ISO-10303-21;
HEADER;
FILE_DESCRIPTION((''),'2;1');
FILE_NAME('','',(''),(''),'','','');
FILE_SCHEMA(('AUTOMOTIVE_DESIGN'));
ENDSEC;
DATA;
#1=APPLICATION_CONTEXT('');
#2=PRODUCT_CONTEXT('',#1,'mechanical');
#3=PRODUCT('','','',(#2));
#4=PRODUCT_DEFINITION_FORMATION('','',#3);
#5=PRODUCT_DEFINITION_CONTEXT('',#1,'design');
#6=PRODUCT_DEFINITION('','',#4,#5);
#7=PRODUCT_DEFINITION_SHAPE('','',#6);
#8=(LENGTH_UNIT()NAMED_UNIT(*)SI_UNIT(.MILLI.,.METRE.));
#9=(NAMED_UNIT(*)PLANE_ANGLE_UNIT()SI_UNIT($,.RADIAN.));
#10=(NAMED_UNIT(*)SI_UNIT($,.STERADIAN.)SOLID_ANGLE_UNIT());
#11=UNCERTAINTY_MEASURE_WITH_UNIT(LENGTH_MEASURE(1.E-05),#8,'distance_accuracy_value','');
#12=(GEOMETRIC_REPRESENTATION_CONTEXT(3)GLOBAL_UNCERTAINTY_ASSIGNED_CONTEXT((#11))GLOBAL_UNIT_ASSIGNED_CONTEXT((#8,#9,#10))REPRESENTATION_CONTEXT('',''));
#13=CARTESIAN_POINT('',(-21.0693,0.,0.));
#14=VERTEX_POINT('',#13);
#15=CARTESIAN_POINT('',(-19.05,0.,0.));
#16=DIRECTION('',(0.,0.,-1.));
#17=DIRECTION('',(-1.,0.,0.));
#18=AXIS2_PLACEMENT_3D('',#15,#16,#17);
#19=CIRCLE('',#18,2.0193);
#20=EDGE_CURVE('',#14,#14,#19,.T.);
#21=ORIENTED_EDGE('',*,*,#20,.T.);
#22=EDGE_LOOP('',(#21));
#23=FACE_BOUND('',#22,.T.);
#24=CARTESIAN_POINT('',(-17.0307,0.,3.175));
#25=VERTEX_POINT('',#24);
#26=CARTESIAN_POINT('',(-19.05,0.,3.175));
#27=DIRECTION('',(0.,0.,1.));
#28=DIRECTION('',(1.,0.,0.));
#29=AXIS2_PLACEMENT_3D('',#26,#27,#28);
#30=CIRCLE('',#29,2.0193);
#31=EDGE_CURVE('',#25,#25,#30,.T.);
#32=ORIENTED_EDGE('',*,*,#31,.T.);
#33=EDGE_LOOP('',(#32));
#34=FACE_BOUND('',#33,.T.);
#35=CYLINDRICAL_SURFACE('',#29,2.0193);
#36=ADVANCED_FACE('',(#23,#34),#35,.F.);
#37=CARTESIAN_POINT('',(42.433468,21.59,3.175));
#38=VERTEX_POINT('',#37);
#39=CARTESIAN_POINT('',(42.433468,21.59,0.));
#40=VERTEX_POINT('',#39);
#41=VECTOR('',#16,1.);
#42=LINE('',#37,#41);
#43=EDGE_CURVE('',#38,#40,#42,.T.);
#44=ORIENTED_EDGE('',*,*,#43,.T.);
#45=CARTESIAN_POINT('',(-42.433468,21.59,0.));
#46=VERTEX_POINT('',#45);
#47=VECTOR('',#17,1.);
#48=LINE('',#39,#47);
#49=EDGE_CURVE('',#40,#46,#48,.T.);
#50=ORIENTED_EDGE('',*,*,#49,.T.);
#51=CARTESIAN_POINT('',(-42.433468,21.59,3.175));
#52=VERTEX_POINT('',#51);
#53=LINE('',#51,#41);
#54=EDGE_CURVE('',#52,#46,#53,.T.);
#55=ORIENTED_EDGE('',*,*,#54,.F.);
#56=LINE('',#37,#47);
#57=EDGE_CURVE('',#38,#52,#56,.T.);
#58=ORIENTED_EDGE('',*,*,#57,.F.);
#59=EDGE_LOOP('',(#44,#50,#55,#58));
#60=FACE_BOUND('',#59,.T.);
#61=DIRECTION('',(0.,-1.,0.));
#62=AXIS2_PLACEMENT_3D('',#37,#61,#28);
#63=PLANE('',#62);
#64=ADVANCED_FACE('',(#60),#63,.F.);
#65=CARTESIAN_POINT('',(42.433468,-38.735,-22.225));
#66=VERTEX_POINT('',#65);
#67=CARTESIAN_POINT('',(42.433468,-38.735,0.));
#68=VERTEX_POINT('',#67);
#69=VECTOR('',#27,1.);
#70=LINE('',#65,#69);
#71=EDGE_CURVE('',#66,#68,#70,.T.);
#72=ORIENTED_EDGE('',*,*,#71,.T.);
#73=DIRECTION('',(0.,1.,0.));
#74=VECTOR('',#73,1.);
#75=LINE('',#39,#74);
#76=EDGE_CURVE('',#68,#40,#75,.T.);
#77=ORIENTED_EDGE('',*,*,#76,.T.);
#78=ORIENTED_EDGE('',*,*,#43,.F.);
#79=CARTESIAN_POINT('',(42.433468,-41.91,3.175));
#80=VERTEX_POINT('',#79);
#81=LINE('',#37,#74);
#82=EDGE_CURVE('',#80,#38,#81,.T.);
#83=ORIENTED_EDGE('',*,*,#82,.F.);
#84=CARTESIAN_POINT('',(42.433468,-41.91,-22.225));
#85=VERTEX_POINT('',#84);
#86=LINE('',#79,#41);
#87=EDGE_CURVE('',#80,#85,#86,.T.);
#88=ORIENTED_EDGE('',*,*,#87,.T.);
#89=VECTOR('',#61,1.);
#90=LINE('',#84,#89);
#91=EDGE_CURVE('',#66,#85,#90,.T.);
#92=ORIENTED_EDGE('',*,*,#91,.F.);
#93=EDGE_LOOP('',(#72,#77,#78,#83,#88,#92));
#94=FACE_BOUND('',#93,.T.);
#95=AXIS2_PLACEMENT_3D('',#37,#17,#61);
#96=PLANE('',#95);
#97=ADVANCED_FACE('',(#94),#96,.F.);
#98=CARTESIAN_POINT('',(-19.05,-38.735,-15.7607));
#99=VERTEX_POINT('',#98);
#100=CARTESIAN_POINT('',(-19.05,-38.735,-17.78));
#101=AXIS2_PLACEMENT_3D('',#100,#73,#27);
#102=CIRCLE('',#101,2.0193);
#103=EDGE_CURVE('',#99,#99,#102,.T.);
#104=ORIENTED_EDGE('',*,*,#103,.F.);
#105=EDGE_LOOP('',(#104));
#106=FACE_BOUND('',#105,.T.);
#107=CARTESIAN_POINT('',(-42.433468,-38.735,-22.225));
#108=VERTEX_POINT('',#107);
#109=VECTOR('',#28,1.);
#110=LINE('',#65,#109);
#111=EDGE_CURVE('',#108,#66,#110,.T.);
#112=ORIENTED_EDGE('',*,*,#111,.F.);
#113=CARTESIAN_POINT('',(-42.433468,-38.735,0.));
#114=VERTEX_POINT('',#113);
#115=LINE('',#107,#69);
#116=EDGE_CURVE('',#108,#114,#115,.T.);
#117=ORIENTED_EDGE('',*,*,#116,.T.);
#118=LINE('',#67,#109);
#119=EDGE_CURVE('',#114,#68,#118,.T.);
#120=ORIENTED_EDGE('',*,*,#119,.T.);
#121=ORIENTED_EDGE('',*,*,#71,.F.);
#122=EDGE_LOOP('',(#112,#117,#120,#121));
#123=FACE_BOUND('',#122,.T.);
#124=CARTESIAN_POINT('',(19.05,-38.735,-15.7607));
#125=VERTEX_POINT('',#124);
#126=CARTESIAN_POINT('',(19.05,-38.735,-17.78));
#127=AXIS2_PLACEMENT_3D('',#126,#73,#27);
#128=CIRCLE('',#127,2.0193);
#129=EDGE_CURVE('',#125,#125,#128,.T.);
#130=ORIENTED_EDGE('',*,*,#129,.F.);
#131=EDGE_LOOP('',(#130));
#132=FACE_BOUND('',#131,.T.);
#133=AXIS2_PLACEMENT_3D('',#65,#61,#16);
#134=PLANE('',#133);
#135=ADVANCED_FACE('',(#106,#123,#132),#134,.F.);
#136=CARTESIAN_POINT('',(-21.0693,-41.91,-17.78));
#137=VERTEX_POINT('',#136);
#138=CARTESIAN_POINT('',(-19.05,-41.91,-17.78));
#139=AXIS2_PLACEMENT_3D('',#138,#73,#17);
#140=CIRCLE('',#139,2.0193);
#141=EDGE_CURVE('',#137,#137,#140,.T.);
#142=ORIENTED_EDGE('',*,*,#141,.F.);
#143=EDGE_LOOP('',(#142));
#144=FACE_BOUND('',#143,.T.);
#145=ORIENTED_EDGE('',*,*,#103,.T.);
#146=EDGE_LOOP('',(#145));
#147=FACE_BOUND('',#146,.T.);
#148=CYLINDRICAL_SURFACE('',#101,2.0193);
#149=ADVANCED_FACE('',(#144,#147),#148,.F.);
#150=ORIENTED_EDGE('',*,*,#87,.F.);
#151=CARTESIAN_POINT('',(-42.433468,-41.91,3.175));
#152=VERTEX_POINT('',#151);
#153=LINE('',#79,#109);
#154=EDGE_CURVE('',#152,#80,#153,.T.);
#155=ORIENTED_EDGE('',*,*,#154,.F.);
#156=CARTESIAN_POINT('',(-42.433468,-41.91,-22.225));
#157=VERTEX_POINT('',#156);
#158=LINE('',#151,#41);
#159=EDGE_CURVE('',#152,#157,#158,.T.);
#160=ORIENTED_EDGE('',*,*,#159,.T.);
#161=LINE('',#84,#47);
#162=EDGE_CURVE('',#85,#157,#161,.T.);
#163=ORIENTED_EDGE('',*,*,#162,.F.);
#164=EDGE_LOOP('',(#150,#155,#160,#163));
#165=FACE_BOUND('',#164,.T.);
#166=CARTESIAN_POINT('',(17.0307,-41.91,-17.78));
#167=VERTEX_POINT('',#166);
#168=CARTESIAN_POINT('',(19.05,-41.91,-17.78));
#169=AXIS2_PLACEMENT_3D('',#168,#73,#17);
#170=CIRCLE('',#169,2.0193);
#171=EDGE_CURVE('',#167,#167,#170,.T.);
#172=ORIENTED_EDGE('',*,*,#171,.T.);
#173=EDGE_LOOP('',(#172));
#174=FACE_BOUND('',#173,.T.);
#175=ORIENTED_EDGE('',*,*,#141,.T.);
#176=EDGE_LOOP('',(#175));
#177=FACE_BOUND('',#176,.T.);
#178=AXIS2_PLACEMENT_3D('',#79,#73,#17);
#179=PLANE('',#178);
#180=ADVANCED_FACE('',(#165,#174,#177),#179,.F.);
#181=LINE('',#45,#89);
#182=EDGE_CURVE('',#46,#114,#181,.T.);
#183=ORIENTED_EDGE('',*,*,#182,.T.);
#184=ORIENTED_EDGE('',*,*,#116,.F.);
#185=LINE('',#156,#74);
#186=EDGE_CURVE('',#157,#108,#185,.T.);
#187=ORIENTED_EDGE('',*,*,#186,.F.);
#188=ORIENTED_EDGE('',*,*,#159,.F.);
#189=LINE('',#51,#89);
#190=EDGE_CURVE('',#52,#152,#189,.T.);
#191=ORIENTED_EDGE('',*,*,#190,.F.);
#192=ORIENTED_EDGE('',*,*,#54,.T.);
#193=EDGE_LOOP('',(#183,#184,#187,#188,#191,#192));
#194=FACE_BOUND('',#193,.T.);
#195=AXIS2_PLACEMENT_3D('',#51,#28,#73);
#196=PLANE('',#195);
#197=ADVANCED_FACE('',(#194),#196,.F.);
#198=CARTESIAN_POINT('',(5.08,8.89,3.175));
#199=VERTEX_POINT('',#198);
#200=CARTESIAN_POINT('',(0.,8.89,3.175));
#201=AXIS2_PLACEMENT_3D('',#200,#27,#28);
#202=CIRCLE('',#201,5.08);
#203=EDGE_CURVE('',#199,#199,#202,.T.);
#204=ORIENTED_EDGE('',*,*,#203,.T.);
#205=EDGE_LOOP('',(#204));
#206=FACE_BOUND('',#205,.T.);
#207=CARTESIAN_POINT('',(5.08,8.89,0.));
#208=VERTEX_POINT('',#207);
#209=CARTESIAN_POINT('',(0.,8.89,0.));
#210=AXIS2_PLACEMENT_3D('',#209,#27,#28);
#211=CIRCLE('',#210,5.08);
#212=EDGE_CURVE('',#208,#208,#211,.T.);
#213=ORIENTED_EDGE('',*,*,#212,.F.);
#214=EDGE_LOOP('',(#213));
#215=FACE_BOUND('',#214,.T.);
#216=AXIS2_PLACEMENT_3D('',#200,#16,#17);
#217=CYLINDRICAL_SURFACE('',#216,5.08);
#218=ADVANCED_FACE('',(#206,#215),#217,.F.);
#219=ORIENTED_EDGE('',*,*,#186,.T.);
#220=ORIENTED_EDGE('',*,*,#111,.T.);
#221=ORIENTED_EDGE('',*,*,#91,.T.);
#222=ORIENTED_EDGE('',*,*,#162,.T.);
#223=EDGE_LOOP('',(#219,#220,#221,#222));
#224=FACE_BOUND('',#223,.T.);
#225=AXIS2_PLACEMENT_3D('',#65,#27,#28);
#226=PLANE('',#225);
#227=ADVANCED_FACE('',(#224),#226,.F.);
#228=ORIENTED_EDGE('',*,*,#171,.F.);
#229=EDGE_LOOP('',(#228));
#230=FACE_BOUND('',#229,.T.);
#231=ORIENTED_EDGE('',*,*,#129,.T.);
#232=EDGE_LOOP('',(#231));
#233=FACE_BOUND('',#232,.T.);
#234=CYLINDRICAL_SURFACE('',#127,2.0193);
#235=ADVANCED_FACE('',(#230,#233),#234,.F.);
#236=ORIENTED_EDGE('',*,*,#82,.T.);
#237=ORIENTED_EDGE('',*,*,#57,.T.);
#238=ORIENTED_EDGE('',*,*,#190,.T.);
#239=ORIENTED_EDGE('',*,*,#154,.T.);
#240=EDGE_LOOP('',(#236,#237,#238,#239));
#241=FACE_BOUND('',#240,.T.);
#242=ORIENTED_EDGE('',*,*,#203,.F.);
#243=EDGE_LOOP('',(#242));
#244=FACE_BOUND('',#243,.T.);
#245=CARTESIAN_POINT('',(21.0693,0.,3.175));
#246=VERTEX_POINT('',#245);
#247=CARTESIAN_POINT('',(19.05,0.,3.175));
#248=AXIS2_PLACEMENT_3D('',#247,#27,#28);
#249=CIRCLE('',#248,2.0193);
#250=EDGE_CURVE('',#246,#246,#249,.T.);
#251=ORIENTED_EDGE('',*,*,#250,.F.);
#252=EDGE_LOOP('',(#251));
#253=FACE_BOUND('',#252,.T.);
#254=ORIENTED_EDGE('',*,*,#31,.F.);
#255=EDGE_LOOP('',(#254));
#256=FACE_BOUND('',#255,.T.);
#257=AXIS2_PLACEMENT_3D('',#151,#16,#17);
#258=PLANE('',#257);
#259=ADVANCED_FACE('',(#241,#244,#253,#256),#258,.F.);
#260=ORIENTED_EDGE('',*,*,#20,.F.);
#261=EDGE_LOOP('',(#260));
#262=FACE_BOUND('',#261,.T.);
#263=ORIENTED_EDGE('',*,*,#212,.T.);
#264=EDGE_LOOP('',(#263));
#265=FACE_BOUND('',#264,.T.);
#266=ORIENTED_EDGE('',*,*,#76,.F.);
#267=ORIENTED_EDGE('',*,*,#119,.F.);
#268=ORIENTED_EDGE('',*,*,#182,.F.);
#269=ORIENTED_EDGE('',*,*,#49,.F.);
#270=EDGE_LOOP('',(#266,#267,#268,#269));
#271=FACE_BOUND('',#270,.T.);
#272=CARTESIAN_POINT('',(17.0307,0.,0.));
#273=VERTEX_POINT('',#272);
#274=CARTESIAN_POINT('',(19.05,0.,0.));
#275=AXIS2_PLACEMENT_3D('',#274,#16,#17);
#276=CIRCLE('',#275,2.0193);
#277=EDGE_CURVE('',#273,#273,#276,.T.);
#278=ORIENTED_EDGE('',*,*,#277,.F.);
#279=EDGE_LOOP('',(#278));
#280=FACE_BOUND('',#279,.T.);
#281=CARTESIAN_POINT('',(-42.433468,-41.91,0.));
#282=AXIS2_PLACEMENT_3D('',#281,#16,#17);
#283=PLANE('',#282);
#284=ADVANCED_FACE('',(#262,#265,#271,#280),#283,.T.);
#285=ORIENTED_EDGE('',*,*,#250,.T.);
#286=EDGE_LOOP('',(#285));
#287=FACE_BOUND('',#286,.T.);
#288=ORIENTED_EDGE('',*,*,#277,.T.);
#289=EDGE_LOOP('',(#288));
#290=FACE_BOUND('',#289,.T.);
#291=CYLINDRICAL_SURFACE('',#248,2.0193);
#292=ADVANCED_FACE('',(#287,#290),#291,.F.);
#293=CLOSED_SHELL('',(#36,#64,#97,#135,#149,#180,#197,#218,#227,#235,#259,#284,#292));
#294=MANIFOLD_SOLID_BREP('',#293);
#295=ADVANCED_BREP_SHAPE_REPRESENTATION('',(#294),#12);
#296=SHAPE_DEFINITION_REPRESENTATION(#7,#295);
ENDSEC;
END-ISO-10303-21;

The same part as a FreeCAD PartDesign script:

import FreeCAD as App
import Part
import Sketcher
Q = App.Units.Quantity

doc = App.newDocument("Part")
body = doc.addObject("PartDesign::Body", "Body")

# Sketch on XY plane
sketch1 = doc.addObject("Sketcher::SketchObject", "Sketch")
body.addObject(sketch1)
sketch1.AttachmentSupport = (doc.XY_Plane, [""])
sketch1.MapMode = "FlatFace"
sketch1.addGeometry([
    Part.LineSegment(App.Vector(-42, 22, 0), App.Vector(-42, -42, 0)),  # 0
    Part.LineSegment(App.Vector(-42, -42, 0), App.Vector(42, -42, 0)),  # 1
    Part.LineSegment(App.Vector(42, -42, 0), App.Vector(42, 22, 0)),  # 2
    Part.LineSegment(App.Vector(42, 22, 0), App.Vector(-42, 22, 0)),  # 3
    Part.Circle(App.Vector(0, 9, 0), App.Vector(0, 0, 1), 5),  # 4
], False)
sketch1.addConstraint([
    Sketcher.Constraint("Coincident", 0, 2, 1, 1),
    Sketcher.Constraint("Coincident", 1, 2, 2, 1),
    Sketcher.Constraint("Coincident", 2, 2, 3, 1),
    Sketcher.Constraint("Coincident", 3, 2, 0, 1),
    Sketcher.Constraint("Vertical", 0),
    Sketcher.Constraint("Horizontal", 1),
    Sketcher.Constraint("Vertical", 2),
    Sketcher.Constraint("Horizontal", 3),
    Sketcher.Constraint("PointOnObject", 4, 3, -2),
    Sketcher.Constraint("Diameter", 4, Q("0.4 in")),
    Sketcher.Constraint("DistanceY", 0, 2, 0, 1, Q("2.5 in")),
    Sketcher.Constraint("DistanceY", 0, 2, 4, 3, Q("2 in")),
    Sketcher.Constraint("DistanceY", -1, 1, 4, 3, Q("0.35 in")),
    Sketcher.Constraint("DistanceX", 1, 1, 1, 2, 84.866936),
    Sketcher.Constraint("DistanceX", 0, 2, -1, 1, 42.433468),
])
pad1 = doc.addObject("PartDesign::Pad", "Pad")
body.addObject(pad1)
pad1.Profile = sketch1
pad1.Length = Q("0.125 in")

# Sketch on XY plane
sketch2 = doc.addObject("Sketcher::SketchObject", "Sketch001")
body.addObject(sketch2)
sketch2.AttachmentSupport = (doc.XY_Plane, [""])
sketch2.MapMode = "FlatFace"
sketch2.AttachmentOffset = App.Placement(App.Vector(0, 0, 0.125 * 25.4), App.Rotation())
sketch2.addGeometry(Part.Circle(App.Vector(-19.1, 0, 0), App.Vector(0, 0, 1), 2), False)
sketch2.addConstraint([
    Sketcher.Constraint("PointOnObject", 0, 3, -1),
    Sketcher.Constraint("Diameter", 0, Q("0.159 in")),
    Sketcher.Constraint("DistanceX", 0, 3, -1, 1, Q("0.75 in")),
])
doc.recompute()
hole = doc.addObject("PartDesign::Hole", "Hole")
body.addObject(hole)
hole.Profile = sketch2
hole.ThreadType = "None"
hole.Diameter = Q("0.159 in")
hole.DepthType = "Dimension"
hole.Depth = Q("0.47 in")
hole.DrillPoint = "Angled"
hole.DrillPointAngle = 118

# Sketch on XY plane
sketch3 = doc.addObject("Sketcher::SketchObject", "Sketch002")
body.addObject(sketch3)
sketch3.AttachmentSupport = (doc.XY_Plane, [""])
sketch3.MapMode = "FlatFace"
sketch3.AttachmentOffset = App.Placement(App.Vector(0, 0, 0.125 * 25.4), App.Rotation())
sketch3.addGeometry(Part.Circle(App.Vector(19.1, 0, 0), App.Vector(0, 0, 1), 2), False)
sketch3.addConstraint([
    Sketcher.Constraint("PointOnObject", 0, 3, -1),
    Sketcher.Constraint("Diameter", 0, Q("0.159 in")),
    Sketcher.Constraint("DistanceX", -1, 1, 0, 3, Q("0.75 in")),
])
doc.recompute()
hole2 = doc.addObject("PartDesign::Hole", "Hole001")
body.addObject(hole2)
hole2.Profile = sketch3
hole2.ThreadType = "None"
hole2.Diameter = Q("0.159 in")
hole2.DepthType = "Dimension"
hole2.Depth = Q("0.47 in")
hole2.DrillPoint = "Angled"
hole2.DrillPointAngle = 118

# Sketch on XY plane
sketch4 = doc.addObject("Sketcher::SketchObject", "Sketch003")
body.addObject(sketch4)
sketch4.AttachmentSupport = (doc.XY_Plane, [""])
sketch4.MapMode = "FlatFace"
sketch4.addGeometry([
    Part.LineSegment(App.Vector(42.4, -38.7, 0), App.Vector(42.4, -41.9, 0)),
    Part.LineSegment(App.Vector(42.4, -41.9, 0), App.Vector(-42.4, -41.9, 0)),
    Part.LineSegment(App.Vector(-42.4, -41.9, 0), App.Vector(-42.4, -38.7, 0)),
    Part.LineSegment(App.Vector(-42.4, -38.7, 0), App.Vector(42.4, -38.7, 0)),
], False)
sketch4.addConstraint([
    Sketcher.Constraint("Coincident", 0, 2, 1, 1),
    Sketcher.Constraint("Coincident", 1, 2, 2, 1),
    Sketcher.Constraint("Coincident", 2, 2, 3, 1),
    Sketcher.Constraint("Coincident", 3, 2, 0, 1),
    Sketcher.Constraint("Vertical", 0),
    Sketcher.Constraint("Horizontal", 1),
    Sketcher.Constraint("Vertical", 2),
    Sketcher.Constraint("Horizontal", 3),
    Sketcher.Constraint("DistanceY", 0, 2, 0, 1, Q("0.125 in")),
    Sketcher.Constraint("DistanceY", 0, 2, -1, 1, Q("1.65 in")),
    Sketcher.Constraint("DistanceX", 1, 2, 1, 1, 84.866936),
    Sketcher.Constraint("DistanceX", -1, 1, 0, 2, 42.433468),
])
pad2 = doc.addObject("PartDesign::Pad", "Pad001")
body.addObject(pad2)
pad2.Profile = sketch4
pad2.Length = Q("0.875 in")
pad2.Reversed = True

# Sketch on XZ plane
sketch5 = doc.addObject("Sketcher::SketchObject", "Sketch004")
body.addObject(sketch5)
sketch5.AttachmentSupport = (doc.XZ_Plane, [""])
sketch5.MapMode = "FlatFace"
sketch5.AttachmentOffset = App.Placement(App.Vector(0, 0, 1.525 * 25.4), App.Rotation())
sketch5.addGeometry(Part.Circle(App.Vector(-19.1, -17.8, 0), App.Vector(0, 0, 1), 2), False)
sketch5.addConstraint([
    Sketcher.Constraint("Diameter", 0, Q("0.159 in")),
    Sketcher.Constraint("DistanceY", 0, 3, -1, 1, Q("0.7 in")),
    Sketcher.Constraint("DistanceX", 0, 3, -1, 1, Q("0.75 in")),
])
doc.recompute()
hole3 = doc.addObject("PartDesign::Hole", "Hole002")
body.addObject(hole3)
hole3.Profile = sketch5
hole3.ThreadType = "None"
hole3.Diameter = Q("0.159 in")
hole3.DepthType = "Dimension"
hole3.Depth = Q("0.47 in")
hole3.DrillPoint = "Angled"
hole3.DrillPointAngle = 118
hole3.Reversed = True

# Sketch on XZ plane
sketch6 = doc.addObject("Sketcher::SketchObject", "Sketch005")
body.addObject(sketch6)
sketch6.AttachmentSupport = (doc.XZ_Plane, [""])
sketch6.MapMode = "FlatFace"
sketch6.AttachmentOffset = App.Placement(App.Vector(0, 0, 1.525 * 25.4), App.Rotation())
sketch6.addGeometry(Part.Circle(App.Vector(19.1, -17.8, 0), App.Vector(0, 0, 1), 2), False)
sketch6.addConstraint([
    Sketcher.Constraint("Diameter", 0, Q("0.159 in")),
    Sketcher.Constraint("DistanceY", 0, 3, -1, 1, Q("0.7 in")),
    Sketcher.Constraint("DistanceX", -1, 1, 0, 3, Q("0.75 in")),
])
doc.recompute()
hole4 = doc.addObject("PartDesign::Hole", "Hole003")
body.addObject(hole4)
hole4.Profile = sketch6
hole4.ThreadType = "None"
hole4.Diameter = Q("0.159 in")
hole4.DepthType = "Dimension"
hole4.Depth = Q("0.47 in")
hole4.DrillPoint = "Angled"
hole4.DrillPointAngle = 118
hole4.Reversed = True

doc.recompute()
